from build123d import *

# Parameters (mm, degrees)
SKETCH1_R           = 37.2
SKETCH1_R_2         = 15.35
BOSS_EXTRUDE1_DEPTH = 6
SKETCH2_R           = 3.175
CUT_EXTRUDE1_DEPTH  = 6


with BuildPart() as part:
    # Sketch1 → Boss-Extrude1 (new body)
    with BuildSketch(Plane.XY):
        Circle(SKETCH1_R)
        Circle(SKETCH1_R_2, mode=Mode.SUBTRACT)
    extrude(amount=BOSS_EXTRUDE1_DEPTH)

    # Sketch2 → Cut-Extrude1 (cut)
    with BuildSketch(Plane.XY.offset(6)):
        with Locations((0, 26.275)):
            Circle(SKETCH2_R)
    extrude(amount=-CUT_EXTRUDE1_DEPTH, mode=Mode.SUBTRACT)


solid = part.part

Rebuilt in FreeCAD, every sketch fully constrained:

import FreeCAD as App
import Part
import Sketcher

doc = App.newDocument("Part")
body = doc.addObject("PartDesign::Body", "Body")

# Sketch on XY plane
sketch1 = body.newObject("Sketcher::SketchObject", "Sketch")
sketch1.AttachmentSupport = (doc.getObject("XY_Plane"), [""])
sketch1.MapMode = "FlatFace"
sketch1.addGeometry(Part.Circle(App.Vector(0, 0, 0), App.Vector(0, 0, 1), 37), False)
sketch1.addGeometry(Part.Circle(App.Vector(0, 0, 0), App.Vector(0, 0, 1), 15), False)
sketch1.addConstraint(Sketcher.Constraint("Coincident", 0, 3, -1, 1))
sketch1.addConstraint(Sketcher.Constraint("Coincident", 1, 3, -1, 1))
sketch1.addConstraint(Sketcher.Constraint("Diameter", 0, 74.4))
sketch1.addConstraint(Sketcher.Constraint("Diameter", 1, 30.7))
pad1 = body.newObject("PartDesign::Pad", "Pad")
pad1.Profile = sketch1
pad1.Length = 6

# Sketch on XY plane
sketch2 = body.newObject("Sketcher::SketchObject", "Sketch001")
sketch2.AttachmentSupport = (doc.getObject("XY_Plane"), [""])
sketch2.MapMode = "FlatFace"
sketch2.AttachmentOffset = App.Placement(App.Vector(0, 0, 6), App.Rotation())
sketch2.addGeometry(Part.Circle(App.Vector(0, 26.3, 0), App.Vector(0, 0, 1), 3.2), False)
sketch2.addConstraint(Sketcher.Constraint("PointOnObject", 0, 3, -2))
sketch2.addConstraint(Sketcher.Constraint("Diameter", 0, 6.35))
sketch2.addConstraint(Sketcher.Constraint("DistanceY", -1, 1, 0, 3, 26.275))
pocket1 = body.newObject("PartDesign::Pocket", "Pocket")
pocket1.Profile = sketch2
pocket1.Length = 6

doc.recompute()
